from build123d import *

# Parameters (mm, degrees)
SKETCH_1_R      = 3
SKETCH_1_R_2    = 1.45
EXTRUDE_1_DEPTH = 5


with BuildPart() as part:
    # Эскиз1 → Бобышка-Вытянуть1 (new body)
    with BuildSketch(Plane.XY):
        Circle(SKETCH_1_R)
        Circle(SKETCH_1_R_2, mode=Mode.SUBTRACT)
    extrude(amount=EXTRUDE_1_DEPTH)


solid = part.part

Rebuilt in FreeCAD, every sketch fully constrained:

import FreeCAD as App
import Part
import Sketcher

doc = App.newDocument("Part")
body = doc.addObject("PartDesign::Body", "Body")

sketch1 = doc.addObject("Sketcher::SketchObject", "Sketch")
body.addObject(sketch1)
sketch1.AttachmentSupport = (doc.XY_Plane, [""])
sketch1.MapMode = "FlatFace"
sketch1.addGeometry(Part.Circle(App.Vector(0, 0, 0), App.Vector(0, 0, 1), 3), False)
sketch1.addGeometry(Part.Circle(App.Vector(0, 0, 0), App.Vector(0, 0, 1), 1.45), False)
sketch1.addConstraint(Sketcher.Constraint("Coincident", 0, 3, -1, 1))
sketch1.addConstraint(Sketcher.Constraint("Coincident", 1, 3, -1, 1))
sketch1.addConstraint(Sketcher.Constraint("Diameter", 0, 6.0))
sketch1.addConstraint(Sketcher.Constraint("Diameter", 1, 2.9))
pad1 = doc.addObject("PartDesign::Pad", "Pad")
body.addObject(pad1)
pad1.Profile = sketch1
pad1.Length = 5

doc.recompute()
